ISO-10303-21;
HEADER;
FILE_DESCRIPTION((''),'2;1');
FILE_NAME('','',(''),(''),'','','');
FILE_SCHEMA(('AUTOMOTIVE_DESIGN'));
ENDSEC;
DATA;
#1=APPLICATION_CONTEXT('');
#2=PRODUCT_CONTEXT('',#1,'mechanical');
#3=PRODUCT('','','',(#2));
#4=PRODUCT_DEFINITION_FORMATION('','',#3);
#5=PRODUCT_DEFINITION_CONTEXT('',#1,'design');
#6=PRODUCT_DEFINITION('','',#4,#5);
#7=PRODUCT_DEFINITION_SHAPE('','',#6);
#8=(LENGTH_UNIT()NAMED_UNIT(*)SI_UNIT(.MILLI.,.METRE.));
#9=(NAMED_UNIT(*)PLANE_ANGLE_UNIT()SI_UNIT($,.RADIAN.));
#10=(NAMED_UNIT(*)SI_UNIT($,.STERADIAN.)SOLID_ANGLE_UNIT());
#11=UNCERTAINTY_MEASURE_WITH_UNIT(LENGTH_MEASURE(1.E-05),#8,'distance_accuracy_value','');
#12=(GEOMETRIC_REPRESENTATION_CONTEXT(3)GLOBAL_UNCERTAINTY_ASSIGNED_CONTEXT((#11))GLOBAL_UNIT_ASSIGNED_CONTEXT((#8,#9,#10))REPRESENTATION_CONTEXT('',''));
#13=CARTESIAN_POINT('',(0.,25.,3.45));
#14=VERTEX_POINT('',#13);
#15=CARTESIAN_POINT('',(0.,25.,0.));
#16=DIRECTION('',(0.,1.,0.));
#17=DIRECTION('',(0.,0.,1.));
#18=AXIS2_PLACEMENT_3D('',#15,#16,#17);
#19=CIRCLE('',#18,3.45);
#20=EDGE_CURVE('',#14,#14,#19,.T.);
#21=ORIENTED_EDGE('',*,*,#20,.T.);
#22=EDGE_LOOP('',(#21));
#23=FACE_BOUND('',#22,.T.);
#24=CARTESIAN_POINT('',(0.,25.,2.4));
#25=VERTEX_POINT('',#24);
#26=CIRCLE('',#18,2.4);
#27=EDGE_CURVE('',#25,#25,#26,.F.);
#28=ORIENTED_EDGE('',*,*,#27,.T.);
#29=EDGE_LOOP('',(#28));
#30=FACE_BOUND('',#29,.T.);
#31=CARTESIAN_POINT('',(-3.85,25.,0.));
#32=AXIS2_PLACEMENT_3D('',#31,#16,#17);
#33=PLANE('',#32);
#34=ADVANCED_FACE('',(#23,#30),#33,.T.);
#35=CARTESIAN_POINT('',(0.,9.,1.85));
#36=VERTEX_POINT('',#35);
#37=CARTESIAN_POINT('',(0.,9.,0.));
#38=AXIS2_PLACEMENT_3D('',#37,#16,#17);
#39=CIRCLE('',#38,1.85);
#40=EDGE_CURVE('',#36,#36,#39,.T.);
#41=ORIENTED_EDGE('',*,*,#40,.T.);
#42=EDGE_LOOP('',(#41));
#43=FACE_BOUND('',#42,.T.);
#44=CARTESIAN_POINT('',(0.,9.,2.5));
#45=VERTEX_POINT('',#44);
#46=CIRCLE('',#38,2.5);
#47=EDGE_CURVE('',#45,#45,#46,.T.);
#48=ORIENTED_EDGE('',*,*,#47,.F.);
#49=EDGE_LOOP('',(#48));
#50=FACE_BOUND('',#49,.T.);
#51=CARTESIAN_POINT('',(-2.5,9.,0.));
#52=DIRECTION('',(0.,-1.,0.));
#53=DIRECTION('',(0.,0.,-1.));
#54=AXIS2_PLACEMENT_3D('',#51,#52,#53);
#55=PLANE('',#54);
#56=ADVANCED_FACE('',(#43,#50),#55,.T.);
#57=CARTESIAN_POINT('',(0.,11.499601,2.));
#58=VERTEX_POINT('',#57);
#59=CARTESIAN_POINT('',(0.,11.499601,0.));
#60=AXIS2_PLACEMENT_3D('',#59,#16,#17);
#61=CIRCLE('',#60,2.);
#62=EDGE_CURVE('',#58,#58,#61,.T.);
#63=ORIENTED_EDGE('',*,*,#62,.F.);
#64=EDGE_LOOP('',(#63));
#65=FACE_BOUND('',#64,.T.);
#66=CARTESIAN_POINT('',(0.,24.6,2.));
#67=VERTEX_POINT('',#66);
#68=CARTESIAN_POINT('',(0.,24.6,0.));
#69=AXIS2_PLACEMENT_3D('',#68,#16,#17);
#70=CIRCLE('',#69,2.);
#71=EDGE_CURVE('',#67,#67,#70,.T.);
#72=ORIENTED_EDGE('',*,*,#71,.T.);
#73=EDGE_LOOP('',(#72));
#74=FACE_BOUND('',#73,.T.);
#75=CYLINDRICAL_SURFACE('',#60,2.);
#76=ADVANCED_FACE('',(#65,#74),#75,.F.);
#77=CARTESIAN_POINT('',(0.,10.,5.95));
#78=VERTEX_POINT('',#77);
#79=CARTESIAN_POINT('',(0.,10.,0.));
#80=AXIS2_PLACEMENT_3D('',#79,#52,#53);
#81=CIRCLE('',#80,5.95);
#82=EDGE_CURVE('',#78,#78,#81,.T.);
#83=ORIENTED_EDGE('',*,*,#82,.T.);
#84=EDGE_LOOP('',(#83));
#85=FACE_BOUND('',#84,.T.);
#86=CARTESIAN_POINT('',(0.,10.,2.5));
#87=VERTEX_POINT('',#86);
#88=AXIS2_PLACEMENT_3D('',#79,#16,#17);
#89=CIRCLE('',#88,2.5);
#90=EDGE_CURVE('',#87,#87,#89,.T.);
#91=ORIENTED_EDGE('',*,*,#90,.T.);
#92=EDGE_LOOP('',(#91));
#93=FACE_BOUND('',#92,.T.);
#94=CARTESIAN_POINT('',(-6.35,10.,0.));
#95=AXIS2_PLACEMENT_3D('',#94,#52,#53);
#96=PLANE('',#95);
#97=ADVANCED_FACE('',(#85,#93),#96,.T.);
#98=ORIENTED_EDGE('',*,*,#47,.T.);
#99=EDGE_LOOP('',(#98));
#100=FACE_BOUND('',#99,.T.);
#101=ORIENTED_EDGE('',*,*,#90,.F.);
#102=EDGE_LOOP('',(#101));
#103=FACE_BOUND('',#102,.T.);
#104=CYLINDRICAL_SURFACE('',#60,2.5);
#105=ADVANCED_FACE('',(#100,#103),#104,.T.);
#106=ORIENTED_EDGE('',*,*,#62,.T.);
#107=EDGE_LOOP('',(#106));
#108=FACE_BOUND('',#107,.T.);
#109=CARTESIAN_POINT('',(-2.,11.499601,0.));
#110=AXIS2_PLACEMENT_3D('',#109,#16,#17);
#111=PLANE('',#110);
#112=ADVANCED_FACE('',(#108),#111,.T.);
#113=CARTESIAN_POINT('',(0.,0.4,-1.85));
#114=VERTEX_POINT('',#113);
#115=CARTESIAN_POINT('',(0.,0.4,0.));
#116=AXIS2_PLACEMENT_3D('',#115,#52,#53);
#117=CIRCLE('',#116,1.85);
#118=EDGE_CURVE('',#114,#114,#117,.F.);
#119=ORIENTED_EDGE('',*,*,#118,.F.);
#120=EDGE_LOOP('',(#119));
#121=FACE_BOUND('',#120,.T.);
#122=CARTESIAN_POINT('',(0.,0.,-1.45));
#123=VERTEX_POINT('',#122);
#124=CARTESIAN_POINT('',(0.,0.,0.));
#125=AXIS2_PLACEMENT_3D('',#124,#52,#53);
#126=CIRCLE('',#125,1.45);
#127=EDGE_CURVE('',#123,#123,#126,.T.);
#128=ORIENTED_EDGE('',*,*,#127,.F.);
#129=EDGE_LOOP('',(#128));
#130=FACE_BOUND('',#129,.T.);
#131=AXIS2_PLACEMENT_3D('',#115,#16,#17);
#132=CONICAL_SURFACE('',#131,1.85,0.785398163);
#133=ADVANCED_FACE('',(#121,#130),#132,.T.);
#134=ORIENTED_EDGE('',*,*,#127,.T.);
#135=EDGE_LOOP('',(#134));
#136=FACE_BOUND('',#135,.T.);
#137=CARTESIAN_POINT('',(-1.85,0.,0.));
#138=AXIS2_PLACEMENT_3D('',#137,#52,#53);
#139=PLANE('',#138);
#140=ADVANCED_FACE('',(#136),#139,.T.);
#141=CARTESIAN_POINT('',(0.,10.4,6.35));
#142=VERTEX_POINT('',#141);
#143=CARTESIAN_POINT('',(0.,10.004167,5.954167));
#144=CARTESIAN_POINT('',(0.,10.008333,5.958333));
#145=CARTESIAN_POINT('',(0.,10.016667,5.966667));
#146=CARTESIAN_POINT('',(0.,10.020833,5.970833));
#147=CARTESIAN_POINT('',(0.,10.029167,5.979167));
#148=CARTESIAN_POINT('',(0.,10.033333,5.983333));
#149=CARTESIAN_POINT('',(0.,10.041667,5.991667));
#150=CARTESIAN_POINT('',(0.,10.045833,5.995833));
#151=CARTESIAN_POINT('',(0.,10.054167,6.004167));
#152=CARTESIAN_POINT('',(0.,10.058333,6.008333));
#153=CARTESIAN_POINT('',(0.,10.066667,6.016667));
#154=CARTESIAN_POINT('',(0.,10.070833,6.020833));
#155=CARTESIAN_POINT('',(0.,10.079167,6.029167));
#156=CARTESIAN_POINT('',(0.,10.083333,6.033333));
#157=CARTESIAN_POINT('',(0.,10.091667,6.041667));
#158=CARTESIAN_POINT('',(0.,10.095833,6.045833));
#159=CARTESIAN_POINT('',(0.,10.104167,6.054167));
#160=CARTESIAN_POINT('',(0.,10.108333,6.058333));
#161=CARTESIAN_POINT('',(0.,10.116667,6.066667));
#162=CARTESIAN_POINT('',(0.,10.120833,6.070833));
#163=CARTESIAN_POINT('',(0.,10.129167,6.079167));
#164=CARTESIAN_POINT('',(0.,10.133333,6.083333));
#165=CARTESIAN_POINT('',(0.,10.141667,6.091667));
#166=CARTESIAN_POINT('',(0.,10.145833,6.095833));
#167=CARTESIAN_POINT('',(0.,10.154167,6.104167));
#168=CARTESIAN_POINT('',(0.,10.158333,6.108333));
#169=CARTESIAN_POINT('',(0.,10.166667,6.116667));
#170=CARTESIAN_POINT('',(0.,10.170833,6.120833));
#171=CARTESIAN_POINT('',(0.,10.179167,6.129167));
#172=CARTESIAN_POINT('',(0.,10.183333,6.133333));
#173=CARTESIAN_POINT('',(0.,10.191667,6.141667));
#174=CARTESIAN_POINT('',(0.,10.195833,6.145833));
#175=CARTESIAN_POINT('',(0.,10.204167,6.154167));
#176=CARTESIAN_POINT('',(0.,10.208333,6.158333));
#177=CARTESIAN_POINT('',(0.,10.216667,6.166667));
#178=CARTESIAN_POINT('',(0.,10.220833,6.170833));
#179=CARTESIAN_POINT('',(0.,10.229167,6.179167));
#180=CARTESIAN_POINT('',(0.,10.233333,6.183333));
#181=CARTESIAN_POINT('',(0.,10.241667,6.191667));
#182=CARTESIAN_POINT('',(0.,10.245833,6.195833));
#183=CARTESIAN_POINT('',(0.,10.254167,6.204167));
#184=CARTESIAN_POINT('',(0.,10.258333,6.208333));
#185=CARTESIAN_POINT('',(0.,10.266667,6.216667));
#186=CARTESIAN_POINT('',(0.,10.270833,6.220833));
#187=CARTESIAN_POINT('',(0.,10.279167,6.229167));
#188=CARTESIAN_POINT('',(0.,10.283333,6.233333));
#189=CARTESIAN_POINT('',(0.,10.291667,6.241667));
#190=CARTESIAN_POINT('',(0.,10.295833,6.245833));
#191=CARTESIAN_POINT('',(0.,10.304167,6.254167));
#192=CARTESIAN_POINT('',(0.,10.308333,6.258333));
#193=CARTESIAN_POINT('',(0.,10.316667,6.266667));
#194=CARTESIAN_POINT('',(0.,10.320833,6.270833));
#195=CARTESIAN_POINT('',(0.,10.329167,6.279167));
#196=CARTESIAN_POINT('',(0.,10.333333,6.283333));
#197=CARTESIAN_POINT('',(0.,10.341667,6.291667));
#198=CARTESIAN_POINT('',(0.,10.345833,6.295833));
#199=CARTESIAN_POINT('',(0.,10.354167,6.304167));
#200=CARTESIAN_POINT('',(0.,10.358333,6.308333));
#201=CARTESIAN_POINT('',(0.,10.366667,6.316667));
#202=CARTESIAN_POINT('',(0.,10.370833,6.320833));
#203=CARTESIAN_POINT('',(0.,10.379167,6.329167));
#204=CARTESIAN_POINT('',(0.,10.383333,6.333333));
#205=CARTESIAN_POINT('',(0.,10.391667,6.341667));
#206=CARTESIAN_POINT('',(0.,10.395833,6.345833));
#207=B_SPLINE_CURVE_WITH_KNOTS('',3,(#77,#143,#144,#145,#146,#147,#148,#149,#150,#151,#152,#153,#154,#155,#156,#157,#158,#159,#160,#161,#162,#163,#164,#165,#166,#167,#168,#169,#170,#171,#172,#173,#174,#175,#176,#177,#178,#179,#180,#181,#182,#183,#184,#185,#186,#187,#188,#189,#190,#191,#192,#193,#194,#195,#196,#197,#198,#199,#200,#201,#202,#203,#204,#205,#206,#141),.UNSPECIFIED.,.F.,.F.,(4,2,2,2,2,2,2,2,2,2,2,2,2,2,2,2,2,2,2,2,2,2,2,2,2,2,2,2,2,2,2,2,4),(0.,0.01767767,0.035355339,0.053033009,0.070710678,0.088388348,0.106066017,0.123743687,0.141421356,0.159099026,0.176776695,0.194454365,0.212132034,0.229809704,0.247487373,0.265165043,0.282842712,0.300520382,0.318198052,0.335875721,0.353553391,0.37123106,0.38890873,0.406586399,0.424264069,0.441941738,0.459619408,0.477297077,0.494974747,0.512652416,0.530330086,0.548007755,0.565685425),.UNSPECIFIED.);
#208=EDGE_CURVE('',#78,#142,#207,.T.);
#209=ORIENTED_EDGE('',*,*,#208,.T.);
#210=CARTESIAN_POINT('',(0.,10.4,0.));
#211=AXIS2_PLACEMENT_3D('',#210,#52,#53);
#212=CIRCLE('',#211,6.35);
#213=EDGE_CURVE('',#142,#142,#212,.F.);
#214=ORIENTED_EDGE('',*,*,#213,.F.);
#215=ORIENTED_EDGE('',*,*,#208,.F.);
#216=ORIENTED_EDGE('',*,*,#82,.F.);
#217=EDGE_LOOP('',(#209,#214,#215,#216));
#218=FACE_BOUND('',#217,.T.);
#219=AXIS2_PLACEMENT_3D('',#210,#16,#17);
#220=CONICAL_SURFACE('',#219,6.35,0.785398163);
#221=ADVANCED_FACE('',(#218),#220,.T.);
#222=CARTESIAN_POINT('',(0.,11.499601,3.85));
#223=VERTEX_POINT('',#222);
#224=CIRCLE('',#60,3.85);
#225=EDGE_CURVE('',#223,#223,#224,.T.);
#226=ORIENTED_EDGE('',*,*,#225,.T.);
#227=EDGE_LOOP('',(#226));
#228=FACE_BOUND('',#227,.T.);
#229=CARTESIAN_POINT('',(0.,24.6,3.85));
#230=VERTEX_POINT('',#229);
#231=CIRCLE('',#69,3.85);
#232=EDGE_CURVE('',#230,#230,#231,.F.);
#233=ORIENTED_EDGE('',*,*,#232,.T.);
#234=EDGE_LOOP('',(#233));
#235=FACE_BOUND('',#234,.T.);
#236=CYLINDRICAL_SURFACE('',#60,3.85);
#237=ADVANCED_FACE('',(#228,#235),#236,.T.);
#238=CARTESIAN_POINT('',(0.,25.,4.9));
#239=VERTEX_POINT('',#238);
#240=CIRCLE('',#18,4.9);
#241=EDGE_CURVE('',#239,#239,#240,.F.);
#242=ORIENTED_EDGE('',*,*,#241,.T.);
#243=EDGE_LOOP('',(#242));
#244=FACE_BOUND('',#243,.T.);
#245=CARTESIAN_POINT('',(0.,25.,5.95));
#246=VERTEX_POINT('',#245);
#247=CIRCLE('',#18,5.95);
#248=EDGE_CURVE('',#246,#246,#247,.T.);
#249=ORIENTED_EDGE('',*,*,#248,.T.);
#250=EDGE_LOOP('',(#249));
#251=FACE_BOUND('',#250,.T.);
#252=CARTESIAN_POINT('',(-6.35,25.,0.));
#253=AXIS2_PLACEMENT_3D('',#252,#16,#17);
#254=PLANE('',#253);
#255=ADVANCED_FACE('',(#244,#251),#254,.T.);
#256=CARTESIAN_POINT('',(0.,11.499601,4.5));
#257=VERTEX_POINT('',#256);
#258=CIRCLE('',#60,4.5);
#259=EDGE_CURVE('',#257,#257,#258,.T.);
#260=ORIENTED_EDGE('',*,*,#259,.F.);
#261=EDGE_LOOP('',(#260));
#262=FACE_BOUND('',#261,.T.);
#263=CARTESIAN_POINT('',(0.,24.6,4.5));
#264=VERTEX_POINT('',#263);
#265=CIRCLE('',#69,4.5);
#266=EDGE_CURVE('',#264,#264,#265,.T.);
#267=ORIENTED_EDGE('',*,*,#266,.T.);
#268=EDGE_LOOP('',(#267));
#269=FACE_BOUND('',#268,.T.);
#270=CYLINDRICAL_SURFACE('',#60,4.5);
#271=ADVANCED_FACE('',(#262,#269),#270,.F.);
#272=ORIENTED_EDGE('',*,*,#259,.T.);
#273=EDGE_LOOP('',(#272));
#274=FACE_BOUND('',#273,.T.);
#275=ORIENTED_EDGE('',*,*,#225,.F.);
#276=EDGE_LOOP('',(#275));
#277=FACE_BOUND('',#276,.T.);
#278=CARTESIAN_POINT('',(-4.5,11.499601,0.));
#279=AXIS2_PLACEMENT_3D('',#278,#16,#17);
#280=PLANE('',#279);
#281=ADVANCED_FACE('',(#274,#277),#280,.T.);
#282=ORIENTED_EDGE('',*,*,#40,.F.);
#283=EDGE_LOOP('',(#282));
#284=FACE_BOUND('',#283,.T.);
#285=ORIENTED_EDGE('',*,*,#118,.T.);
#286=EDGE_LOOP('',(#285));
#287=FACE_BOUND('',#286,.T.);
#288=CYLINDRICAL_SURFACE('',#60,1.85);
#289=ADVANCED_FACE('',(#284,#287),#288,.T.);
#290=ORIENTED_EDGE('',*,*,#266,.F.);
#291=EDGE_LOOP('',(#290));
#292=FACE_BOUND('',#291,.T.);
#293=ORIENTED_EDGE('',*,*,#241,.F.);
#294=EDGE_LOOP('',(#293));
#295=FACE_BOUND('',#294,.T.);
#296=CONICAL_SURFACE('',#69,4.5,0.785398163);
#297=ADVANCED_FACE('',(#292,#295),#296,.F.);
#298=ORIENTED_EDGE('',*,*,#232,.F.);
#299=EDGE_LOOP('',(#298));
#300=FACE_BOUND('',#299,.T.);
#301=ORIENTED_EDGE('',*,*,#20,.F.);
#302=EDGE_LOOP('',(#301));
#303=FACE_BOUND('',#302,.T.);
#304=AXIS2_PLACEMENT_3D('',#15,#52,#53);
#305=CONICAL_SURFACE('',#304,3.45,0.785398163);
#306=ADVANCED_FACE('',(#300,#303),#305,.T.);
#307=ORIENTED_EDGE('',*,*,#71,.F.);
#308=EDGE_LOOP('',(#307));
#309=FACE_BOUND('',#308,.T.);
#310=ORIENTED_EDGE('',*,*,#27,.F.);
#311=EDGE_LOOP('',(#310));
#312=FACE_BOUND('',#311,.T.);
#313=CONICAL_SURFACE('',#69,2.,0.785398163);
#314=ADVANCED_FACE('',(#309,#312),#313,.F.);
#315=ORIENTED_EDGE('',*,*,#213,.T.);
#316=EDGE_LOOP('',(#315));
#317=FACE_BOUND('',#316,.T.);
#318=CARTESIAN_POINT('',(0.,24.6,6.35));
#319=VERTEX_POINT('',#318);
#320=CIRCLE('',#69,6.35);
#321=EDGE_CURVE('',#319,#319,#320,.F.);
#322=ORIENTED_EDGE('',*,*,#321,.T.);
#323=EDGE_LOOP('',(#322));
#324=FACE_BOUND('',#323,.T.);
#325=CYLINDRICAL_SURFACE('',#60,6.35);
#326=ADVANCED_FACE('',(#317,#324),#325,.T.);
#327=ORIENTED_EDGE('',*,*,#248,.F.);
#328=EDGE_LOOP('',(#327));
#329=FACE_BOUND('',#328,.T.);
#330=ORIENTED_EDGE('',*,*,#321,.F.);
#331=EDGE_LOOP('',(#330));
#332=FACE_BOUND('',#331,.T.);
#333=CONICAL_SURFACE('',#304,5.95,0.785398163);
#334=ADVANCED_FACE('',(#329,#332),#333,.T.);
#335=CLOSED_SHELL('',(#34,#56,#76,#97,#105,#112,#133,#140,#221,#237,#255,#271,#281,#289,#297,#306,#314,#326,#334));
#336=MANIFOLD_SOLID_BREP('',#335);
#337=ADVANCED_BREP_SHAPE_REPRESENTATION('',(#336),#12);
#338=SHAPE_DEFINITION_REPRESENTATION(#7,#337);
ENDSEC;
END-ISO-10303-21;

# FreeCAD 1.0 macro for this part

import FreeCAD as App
import Part
import Sketcher

V = App.Vector
Q = App.Units.Quantity


def edges_at(feature, points):
    """Names of the edges that pass closest to the given points."""
    edges = feature.Shape.Edges
    near = lambda p: min(range(len(edges)), key=lambda i: edges[i].distToShape(Part.Vertex(*p))[0])
    return sorted({f"Edge{near(p) + 1}" for p in points})


def add_polygon(sketch, points):
    """Adds a closed chain of lines whose ends are joined by coincident constraints."""
    first, n = sketch.GeometryCount, len(points)
    for a, b in zip(points, points[1:] + points[:1]):
        sketch.addGeometry(Part.LineSegment(App.Vector(*a, 0), App.Vector(*b, 0)), False)
    for i in range(n):
        sketch.addConstraint(Sketcher.Constraint("Coincident", first + i, 2, first + (i + 1) % n, 1))

doc = App.newDocument("Part")
body = doc.addObject("PartDesign::Body", "Body")

sketch1 = body.newObject("Sketcher::SketchObject", "Sketch")
sketch1.AttachmentSupport = (doc.getObject("XY_Plane"), [""])
sketch1.MapMode = "FlatFace"
add_polygon(sketch1, [(-6.3, 25), (-6.3, 10), (-2.5, 10), (-2.5, 9), (-1.9, 9), (-1.9, 0), (0, 0), (0, 11.5), (-2, 11.5), (-2, 25), (-3.9, 25), (-3.9, 11.5), (-4.5, 11.5), (-4.5, 25)])
sketch1.addConstraint([
    Sketcher.Constraint("Vertical", 0),
    Sketcher.Constraint("Horizontal", 1),
    Sketcher.Constraint("Vertical", 2),
    Sketcher.Constraint("Horizontal", 3),
    Sketcher.Constraint("Vertical", 4),
    Sketcher.Constraint("Horizontal", 5),
    Sketcher.Constraint("Vertical", 6),
    Sketcher.Constraint("Horizontal", 7),
    Sketcher.Constraint("Vertical", 8),
    Sketcher.Constraint("Horizontal", 9),
    Sketcher.Constraint("Vertical", 10),
    Sketcher.Constraint("Horizontal", 11),
    Sketcher.Constraint("Vertical", 12),
    Sketcher.Constraint("Horizontal", 13),
    Sketcher.Constraint("Coincident", 5, 2, -1, 1),
    Sketcher.Constraint("Horizontal", 7, 2, 10, 2),
    Sketcher.Constraint("Horizontal", 9, 2, 12, 2),
    Sketcher.Constraint("Equal", 5, 9),
    Sketcher.Constraint("Equal", 3, 11),
    Sketcher.Constraint("Equal", 9, 13),
    Sketcher.Constraint("DistanceX", 7, 2, 7, 1, Q("2 mm")),
    Sketcher.Constraint("DistanceY", 0, 2, 0, 1, Q("15 mm")),
    Sketcher.Constraint("DistanceY", 2, 2, 2, 1, Q("1 mm")),
    Sketcher.Constraint("DistanceY", 4, 2, 4, 1, Q("9 mm")),
    Sketcher.Constraint("DistanceX", 1, 1, 1, 2, Q("3.85 mm")),
    Sketcher.Constraint("DistanceX", 3, 1, 3, 2, Q("0.65 mm")),
    Sketcher.Constraint("DistanceY", 6, 1, 6, 2, Q("11.499601 mm")),
])
revolution = body.newObject("PartDesign::Revolution", "Revolution")
revolution.Profile = sketch1
revolution.ReferenceAxis = (sketch1, ["V_Axis"])
revolution.Angle = 360
doc.recompute()

chamfer = body.newObject("PartDesign::Chamfer", "Chamfer")
chamfer.Base = (revolution, edges_at(revolution, [
    (0, 0, -1.85),
    (0, 10, -6.35),
    (0, 25, -6.35),
    (0, 25, -4.5),
    (0, 25, -3.85),
    (0, 25, -2),
]))
chamfer.Size = 0.4

doc.recompute()
